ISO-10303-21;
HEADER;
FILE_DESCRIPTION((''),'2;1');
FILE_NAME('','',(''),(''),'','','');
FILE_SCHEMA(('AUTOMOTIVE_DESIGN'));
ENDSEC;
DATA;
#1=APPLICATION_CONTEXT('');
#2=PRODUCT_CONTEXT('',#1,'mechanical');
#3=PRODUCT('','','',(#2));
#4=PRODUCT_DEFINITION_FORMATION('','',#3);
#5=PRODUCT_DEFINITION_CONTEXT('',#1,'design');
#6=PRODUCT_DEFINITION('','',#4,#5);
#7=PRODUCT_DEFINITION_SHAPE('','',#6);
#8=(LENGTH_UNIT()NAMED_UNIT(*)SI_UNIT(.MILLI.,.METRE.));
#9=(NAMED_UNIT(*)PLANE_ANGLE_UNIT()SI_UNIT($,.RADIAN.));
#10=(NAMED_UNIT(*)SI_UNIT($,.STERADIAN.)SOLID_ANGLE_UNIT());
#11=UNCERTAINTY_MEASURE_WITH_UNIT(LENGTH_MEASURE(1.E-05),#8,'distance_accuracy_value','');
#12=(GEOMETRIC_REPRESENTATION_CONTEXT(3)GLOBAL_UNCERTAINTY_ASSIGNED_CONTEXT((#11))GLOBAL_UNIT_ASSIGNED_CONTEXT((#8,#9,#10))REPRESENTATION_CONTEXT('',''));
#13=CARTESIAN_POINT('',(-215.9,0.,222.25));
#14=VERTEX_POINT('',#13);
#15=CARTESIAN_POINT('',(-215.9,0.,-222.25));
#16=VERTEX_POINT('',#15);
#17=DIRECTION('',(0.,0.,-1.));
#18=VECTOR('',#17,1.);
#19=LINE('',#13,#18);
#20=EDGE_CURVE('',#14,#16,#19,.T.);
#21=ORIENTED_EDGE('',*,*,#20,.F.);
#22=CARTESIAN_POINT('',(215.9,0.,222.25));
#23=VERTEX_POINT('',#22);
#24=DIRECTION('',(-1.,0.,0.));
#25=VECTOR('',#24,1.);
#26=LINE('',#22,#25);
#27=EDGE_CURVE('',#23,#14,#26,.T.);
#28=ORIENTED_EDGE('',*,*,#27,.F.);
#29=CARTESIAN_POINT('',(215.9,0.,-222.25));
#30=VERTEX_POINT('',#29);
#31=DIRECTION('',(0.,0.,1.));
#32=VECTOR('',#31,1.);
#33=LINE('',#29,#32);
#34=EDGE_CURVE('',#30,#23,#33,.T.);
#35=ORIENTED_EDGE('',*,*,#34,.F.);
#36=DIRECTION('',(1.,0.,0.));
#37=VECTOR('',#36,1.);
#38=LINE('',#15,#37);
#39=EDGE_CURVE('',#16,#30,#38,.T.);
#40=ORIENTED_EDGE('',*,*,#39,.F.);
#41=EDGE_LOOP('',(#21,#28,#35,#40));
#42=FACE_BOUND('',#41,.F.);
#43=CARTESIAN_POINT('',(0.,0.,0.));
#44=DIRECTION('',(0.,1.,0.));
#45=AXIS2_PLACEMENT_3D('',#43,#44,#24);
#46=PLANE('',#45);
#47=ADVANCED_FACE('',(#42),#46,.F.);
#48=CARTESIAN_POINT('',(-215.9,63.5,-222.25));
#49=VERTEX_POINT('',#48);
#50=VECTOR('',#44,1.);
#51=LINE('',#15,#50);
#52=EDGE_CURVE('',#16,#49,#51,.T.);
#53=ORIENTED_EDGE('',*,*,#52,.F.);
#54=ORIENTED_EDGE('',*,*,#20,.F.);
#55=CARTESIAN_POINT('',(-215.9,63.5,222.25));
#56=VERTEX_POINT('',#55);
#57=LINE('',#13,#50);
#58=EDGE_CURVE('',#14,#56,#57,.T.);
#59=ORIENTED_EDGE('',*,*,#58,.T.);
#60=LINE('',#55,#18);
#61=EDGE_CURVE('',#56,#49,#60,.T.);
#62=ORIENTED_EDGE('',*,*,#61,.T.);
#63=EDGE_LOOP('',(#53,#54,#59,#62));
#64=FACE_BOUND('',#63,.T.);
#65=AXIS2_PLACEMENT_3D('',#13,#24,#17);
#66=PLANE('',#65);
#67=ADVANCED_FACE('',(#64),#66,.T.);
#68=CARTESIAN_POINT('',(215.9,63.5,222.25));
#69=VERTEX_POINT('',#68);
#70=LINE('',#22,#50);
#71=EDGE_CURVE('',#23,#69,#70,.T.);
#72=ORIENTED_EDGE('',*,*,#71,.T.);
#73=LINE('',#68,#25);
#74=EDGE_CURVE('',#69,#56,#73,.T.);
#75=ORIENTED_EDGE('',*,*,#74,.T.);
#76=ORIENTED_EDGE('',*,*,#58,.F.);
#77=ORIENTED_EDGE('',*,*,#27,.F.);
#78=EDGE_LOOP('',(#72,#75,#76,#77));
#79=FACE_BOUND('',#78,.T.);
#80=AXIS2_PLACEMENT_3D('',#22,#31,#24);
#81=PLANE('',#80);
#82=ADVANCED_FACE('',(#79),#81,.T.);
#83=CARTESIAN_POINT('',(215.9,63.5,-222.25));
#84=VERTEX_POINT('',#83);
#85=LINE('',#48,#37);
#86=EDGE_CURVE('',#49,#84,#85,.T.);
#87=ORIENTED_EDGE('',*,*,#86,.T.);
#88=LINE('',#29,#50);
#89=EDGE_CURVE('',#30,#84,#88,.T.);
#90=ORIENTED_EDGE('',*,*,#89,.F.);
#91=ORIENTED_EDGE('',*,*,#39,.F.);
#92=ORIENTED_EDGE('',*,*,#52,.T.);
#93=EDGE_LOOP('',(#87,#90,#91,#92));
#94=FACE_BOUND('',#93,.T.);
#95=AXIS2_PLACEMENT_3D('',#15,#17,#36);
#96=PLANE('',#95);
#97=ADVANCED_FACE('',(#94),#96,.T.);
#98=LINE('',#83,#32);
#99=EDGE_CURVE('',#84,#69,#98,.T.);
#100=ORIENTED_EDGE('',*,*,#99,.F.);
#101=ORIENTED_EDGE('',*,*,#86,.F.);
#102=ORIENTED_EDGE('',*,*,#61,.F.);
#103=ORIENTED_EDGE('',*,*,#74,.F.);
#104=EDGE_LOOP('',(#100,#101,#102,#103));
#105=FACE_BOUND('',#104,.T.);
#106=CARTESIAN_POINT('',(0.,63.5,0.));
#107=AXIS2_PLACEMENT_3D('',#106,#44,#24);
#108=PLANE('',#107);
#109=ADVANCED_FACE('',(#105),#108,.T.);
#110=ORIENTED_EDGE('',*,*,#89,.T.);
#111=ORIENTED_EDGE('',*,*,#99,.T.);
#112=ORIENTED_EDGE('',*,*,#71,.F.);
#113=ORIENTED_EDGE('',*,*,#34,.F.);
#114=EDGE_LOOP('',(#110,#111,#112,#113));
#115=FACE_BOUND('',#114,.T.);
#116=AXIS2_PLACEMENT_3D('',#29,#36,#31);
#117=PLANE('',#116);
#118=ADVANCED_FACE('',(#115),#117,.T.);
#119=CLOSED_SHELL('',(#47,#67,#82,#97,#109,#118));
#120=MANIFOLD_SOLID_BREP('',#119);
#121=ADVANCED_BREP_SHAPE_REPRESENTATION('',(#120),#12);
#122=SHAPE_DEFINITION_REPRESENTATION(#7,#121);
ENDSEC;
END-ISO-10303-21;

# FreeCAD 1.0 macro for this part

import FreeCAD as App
import Part
import Sketcher
Q = App.Units.Quantity


def add_polygon(sketch, points):
    """Adds a closed chain of lines whose ends are joined by coincident constraints."""
    first, n = sketch.GeometryCount, len(points)
    for a, b in zip(points, points[1:] + points[:1]):
        sketch.addGeometry(Part.LineSegment(App.Vector(*a, 0), App.Vector(*b, 0)), False)
    for i in range(n):
        sketch.addConstraint(Sketcher.Constraint("Coincident", first + i, 2, first + (i + 1) % n, 1))

doc = App.newDocument("Part")
body = doc.addObject("PartDesign::Body", "Body")

# Sketch on XZ plane
sketch1 = body.newObject("Sketcher::SketchObject", "Sketch")
sketch1.AttachmentSupport = (doc.getObject("XZ_Plane"), [""])
sketch1.MapMode = "FlatFace"
add_polygon(sketch1, [(216, -222), (-216, -222), (-216, 222), (216, 222)])  # lines 0-3
sketch1.addConstraint(Sketcher.Constraint("Horizontal", 0))
sketch1.addConstraint(Sketcher.Constraint("Vertical", 1))
sketch1.addConstraint(Sketcher.Constraint("Horizontal", 2))
sketch1.addConstraint(Sketcher.Constraint("Vertical", 3))
sketch1.addConstraint(Sketcher.Constraint("Symmetric", 0, 2, 2, 2, -1, 1))
sketch1.addConstraint(Sketcher.Constraint("DistanceX", 0, 2, 0, 1, Q("17 in")))
sketch1.addConstraint(Sketcher.Constraint("DistanceY", 1, 1, 1, 2, Q("17.5 in")))
pad1 = body.newObject("PartDesign::Pad", "Pad")
pad1.Profile = sketch1
pad1.Length = Q("2.5 in")
pad1.Reversed = True

doc.recompute()
